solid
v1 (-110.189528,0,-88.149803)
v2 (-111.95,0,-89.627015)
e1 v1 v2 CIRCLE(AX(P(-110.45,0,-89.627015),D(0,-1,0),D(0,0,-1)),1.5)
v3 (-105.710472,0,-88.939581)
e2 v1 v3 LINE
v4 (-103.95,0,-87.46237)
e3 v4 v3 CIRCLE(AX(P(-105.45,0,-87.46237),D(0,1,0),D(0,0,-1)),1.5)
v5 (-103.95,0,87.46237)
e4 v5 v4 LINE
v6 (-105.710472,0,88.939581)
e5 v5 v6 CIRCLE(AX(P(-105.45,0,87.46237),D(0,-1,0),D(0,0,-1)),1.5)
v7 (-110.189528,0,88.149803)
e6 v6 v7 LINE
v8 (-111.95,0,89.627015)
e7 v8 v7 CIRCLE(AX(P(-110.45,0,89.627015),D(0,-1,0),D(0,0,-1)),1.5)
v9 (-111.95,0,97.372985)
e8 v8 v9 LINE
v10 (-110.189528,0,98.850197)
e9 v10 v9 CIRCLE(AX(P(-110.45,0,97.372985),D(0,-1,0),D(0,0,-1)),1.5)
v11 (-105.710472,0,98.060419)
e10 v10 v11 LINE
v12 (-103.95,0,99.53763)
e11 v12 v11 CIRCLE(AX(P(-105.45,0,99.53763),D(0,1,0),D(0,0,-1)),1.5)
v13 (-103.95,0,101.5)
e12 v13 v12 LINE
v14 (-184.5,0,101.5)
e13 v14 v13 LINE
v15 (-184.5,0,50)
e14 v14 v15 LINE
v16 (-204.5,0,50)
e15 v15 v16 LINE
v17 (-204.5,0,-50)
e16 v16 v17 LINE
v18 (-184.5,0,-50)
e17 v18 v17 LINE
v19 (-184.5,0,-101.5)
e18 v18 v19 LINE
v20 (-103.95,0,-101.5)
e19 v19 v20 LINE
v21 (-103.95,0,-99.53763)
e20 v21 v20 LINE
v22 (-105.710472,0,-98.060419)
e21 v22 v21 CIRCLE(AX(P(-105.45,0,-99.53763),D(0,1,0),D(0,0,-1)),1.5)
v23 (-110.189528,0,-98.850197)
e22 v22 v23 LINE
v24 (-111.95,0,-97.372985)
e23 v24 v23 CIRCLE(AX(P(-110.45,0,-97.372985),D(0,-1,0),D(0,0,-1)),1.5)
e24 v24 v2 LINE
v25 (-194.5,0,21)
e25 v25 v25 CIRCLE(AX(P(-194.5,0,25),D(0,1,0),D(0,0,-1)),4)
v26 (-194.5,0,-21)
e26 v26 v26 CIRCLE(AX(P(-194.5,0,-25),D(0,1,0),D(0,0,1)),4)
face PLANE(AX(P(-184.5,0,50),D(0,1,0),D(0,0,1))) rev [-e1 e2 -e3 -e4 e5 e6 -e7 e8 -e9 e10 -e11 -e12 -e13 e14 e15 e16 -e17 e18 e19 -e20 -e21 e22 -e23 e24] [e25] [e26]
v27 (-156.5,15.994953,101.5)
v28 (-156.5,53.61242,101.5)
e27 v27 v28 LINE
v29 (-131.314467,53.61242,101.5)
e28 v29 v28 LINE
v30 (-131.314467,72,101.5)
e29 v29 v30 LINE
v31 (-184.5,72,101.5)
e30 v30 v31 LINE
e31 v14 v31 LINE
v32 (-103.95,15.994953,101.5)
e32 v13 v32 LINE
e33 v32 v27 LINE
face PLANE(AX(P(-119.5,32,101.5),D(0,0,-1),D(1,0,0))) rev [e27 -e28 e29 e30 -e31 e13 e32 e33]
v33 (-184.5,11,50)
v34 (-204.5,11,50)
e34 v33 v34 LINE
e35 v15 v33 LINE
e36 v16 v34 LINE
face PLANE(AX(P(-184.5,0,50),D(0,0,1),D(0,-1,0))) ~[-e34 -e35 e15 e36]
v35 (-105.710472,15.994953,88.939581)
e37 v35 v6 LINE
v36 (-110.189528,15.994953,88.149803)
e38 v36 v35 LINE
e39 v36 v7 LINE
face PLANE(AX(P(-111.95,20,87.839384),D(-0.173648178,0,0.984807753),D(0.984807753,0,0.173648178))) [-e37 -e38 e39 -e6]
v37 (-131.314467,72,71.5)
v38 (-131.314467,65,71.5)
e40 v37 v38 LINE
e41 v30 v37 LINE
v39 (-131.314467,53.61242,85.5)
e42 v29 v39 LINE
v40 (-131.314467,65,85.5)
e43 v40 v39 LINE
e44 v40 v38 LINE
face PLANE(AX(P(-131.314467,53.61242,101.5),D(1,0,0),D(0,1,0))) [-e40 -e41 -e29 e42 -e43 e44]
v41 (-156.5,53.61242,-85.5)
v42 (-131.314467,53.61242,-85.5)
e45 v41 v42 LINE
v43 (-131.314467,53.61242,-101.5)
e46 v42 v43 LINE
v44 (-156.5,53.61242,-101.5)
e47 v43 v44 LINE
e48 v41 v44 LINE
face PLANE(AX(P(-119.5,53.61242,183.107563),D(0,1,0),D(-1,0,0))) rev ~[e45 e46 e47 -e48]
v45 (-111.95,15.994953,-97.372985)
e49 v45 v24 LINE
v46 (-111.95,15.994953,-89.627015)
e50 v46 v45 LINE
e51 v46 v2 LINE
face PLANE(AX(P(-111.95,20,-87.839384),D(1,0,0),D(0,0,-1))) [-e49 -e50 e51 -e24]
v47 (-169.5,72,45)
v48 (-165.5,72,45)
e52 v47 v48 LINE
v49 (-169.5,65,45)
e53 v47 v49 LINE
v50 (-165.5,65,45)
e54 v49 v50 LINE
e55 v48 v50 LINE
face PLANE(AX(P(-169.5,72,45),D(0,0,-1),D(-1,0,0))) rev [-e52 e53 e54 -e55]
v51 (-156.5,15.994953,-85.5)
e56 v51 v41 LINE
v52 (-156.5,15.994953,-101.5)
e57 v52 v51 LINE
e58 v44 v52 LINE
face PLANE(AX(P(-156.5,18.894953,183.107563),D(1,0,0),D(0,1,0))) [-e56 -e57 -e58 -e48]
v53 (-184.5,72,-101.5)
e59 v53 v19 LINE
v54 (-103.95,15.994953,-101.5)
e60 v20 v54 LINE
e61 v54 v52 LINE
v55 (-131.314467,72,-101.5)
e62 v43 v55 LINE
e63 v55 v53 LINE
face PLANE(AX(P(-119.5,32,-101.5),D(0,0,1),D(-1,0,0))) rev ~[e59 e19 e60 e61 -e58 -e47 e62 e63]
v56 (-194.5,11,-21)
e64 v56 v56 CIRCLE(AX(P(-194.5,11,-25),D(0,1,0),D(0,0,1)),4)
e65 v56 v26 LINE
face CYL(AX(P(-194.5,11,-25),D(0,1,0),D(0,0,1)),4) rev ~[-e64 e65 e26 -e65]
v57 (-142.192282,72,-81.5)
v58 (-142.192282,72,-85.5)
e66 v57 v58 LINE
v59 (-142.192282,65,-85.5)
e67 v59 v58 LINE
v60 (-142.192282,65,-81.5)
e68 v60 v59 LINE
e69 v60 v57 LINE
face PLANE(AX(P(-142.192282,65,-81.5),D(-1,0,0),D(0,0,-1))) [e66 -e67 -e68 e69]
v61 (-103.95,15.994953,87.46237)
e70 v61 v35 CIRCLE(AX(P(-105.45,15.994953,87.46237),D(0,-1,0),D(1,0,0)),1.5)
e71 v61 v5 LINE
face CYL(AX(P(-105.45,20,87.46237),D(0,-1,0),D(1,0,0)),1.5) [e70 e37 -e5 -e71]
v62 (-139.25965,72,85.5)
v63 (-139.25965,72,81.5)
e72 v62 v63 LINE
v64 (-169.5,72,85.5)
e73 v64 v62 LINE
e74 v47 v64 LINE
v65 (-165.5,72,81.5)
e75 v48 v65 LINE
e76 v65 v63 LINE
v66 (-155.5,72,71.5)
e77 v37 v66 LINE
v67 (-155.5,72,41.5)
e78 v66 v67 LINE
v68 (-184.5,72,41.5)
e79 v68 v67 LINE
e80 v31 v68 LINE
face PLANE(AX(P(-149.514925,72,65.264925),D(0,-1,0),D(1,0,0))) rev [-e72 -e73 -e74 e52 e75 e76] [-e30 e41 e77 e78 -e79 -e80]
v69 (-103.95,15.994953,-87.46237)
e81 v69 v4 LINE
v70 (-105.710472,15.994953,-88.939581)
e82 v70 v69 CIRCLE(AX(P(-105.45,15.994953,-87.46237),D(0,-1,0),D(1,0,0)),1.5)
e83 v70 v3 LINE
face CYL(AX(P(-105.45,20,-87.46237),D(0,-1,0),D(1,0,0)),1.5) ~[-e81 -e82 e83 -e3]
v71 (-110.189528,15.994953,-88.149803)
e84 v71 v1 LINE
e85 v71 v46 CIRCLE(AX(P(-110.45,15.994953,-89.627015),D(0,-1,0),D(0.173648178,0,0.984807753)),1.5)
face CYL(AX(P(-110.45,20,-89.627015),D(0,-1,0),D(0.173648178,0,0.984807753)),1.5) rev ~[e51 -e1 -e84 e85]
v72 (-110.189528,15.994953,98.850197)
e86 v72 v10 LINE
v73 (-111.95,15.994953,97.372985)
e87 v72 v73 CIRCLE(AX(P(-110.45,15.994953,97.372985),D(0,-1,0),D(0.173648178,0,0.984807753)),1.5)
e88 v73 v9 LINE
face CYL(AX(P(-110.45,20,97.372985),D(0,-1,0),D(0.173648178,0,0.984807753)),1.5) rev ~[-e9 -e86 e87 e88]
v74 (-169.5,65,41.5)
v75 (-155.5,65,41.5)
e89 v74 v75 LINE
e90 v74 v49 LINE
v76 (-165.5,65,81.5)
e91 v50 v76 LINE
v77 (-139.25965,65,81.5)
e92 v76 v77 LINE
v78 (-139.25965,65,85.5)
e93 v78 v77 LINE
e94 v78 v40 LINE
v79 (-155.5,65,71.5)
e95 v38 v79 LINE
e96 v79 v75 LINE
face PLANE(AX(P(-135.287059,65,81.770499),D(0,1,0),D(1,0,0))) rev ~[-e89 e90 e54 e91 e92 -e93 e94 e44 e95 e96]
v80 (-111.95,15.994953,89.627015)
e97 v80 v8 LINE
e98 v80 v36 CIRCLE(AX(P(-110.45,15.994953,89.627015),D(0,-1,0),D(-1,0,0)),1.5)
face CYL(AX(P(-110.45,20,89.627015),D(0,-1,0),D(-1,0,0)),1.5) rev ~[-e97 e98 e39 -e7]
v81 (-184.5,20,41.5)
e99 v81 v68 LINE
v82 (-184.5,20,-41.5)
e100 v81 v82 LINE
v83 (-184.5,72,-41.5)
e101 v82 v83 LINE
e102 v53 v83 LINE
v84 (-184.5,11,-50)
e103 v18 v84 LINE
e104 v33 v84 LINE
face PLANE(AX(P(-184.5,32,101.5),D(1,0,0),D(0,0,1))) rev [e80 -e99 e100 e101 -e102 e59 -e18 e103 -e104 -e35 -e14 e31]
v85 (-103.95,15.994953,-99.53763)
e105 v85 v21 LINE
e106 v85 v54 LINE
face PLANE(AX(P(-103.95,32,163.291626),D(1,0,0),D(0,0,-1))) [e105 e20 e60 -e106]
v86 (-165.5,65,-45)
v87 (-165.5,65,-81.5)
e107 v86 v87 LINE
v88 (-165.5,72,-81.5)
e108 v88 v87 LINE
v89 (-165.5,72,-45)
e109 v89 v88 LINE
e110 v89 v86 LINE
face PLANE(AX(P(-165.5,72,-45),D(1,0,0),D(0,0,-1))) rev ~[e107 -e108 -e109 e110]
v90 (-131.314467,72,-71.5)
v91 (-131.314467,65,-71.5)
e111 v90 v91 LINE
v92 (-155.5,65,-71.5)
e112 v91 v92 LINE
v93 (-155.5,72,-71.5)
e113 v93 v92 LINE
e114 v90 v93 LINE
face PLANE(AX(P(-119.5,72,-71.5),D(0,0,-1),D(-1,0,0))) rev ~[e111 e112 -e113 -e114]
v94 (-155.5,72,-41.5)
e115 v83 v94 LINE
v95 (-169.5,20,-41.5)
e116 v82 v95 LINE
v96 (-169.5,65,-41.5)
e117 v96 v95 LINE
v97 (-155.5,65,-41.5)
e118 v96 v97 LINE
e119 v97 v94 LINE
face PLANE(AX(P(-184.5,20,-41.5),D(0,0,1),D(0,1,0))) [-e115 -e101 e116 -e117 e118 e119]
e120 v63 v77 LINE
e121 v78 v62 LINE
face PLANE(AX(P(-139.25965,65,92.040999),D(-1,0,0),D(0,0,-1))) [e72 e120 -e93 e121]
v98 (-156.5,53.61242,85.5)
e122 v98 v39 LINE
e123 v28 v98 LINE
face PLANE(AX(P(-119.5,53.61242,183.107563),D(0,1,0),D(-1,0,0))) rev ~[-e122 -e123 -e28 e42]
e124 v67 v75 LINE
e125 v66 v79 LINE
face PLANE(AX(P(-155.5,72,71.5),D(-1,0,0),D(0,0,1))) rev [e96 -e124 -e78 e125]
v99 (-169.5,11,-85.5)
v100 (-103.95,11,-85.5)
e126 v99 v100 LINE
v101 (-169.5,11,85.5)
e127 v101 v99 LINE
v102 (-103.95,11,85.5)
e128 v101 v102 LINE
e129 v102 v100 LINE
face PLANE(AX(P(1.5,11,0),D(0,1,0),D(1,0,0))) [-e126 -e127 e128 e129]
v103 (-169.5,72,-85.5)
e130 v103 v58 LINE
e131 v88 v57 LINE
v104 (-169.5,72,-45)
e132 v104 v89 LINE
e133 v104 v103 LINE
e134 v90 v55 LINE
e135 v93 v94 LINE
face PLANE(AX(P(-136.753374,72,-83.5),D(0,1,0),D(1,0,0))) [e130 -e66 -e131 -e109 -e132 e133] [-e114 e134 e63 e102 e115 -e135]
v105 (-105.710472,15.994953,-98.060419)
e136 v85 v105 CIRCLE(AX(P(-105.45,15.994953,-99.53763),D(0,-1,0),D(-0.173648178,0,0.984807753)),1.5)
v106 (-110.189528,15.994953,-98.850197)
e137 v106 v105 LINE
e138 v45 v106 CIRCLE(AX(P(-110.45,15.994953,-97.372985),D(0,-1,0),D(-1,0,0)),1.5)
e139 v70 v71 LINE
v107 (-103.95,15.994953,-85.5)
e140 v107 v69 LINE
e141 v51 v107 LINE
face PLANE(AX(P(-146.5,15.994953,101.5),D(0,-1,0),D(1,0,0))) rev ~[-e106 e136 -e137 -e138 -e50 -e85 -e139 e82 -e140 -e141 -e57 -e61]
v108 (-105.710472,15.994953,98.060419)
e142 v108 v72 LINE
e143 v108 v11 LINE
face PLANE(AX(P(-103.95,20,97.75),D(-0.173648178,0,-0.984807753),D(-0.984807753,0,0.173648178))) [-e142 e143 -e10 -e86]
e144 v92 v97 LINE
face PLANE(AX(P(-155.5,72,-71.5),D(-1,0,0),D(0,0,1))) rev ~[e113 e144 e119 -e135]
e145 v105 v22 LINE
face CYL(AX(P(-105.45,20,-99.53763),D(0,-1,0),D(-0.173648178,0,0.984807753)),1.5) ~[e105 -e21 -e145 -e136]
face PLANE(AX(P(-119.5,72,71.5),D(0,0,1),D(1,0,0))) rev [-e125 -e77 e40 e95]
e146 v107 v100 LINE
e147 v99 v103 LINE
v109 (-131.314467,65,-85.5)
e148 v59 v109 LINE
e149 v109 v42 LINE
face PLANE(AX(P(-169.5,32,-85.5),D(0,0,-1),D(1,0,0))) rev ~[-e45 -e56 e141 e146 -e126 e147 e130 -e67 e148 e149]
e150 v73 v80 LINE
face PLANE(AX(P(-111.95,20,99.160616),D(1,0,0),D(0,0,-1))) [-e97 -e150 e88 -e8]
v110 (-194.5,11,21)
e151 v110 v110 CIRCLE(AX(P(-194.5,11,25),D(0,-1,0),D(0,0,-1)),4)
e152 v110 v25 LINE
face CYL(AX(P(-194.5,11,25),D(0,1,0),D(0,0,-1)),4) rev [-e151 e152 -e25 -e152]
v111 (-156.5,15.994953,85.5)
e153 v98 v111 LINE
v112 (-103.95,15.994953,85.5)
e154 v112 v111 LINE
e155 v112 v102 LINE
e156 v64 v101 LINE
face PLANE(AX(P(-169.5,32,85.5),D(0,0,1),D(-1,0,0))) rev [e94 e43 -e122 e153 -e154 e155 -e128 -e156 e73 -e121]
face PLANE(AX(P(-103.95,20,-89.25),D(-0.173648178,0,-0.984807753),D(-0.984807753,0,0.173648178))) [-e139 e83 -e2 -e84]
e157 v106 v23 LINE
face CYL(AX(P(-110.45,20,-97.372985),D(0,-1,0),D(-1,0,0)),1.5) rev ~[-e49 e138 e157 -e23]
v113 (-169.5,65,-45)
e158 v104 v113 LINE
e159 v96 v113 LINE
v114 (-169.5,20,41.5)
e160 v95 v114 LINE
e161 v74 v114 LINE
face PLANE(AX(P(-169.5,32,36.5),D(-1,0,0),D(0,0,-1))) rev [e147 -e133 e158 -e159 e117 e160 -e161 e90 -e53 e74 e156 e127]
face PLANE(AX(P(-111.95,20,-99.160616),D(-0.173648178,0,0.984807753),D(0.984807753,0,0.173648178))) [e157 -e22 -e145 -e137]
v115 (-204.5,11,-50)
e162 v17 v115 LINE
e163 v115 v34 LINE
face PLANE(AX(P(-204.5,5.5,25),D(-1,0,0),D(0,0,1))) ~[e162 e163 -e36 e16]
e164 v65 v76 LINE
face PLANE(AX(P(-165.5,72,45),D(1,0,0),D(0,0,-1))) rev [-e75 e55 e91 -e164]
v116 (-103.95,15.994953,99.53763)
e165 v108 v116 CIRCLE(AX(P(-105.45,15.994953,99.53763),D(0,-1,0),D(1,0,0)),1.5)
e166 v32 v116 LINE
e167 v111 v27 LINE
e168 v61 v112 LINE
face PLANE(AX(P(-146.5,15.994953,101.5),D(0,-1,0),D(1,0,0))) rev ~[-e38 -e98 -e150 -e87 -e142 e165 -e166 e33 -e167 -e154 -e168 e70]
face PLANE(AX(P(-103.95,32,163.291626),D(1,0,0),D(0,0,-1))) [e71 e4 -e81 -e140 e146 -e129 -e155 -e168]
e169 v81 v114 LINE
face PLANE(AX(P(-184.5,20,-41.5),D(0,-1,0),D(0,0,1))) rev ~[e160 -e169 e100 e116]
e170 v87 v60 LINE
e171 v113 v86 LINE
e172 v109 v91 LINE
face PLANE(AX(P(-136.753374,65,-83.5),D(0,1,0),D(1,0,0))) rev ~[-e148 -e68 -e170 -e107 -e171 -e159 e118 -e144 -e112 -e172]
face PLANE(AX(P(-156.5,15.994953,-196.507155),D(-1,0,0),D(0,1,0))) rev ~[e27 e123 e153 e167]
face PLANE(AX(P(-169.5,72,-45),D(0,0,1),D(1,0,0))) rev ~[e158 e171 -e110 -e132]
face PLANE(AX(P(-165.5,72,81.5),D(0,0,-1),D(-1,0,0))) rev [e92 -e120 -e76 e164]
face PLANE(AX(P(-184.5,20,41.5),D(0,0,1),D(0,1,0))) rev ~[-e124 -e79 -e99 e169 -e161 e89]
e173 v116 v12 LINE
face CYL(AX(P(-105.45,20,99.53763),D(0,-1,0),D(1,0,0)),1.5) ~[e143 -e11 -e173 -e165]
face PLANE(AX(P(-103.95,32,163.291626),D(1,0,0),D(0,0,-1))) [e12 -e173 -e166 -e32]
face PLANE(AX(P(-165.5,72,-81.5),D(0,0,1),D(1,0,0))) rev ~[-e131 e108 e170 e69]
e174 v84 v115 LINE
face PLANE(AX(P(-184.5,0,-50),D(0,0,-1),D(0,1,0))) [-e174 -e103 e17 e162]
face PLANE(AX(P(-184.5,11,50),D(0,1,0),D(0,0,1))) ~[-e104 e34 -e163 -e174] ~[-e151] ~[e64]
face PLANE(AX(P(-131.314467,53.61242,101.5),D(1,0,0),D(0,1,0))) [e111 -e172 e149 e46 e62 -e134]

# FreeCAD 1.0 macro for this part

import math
import FreeCAD as App
import Part
import Sketcher

V = App.Vector
Q = App.Units.Quantity


def edges_at(feature, points):
    """Names of the edges that pass closest to the given points."""
    edges = feature.Shape.Edges
    near = lambda p: min(range(len(edges)), key=lambda i: edges[i].distToShape(Part.Vertex(*p))[0])
    return sorted({f"Edge{near(p) + 1}" for p in points})

doc = App.newDocument("Part")
body = doc.addObject("PartDesign::Body", "Body")

# Sketch on XZ plane
sketch1 = doc.addObject("Sketcher::SketchObject", "Sketch")
body.addObject(sketch1)
sketch1.AttachmentSupport = (doc.XZ_Plane, [""])
sketch1.MapMode = "FlatFace"
sketch1.addGeometry([
    Part.LineSegment(V(-184, -102, 0), V(-184, 102, 0)),
    Part.LineSegment(V(-184, 102, 0), V(184, 102, 0)),
    Part.LineSegment(V(184, 102, 0), V(184, -102, 0)),
    Part.LineSegment(V(184, -102, 0), V(-184, -102, 0)),
], False)
sketch1.addConstraint([
    Sketcher.Constraint("Coincident", 0, 2, 1, 1),
    Sketcher.Constraint("Coincident", 1, 2, 2, 1),
    Sketcher.Constraint("Coincident", 2, 2, 3, 1),
    Sketcher.Constraint("Coincident", 3, 2, 0, 1),
    Sketcher.Constraint("Vertical", 0),
    Sketcher.Constraint("Horizontal", 1),
    Sketcher.Constraint("Vertical", 2),
    Sketcher.Constraint("Horizontal", 3),
    Sketcher.Constraint("Symmetric", 0, 2, 2, 2, -1, 1),
    Sketcher.Constraint("DistanceX", 1, 1, 1, 2, Q("369 mm")),
    Sketcher.Constraint("DistanceY", 0, 1, 0, 2, Q("203 mm")),
])
pad1 = doc.addObject("PartDesign::Pad", "Pad")
body.addObject(pad1)
pad1.Profile = sketch1
pad1.Length = 20
pad1.Reversed = True

# Sketch on XZ plane
sketch2 = doc.addObject("Sketcher::SketchObject", "Sketch001")
body.addObject(sketch2)
sketch2.AttachmentSupport = (doc.XZ_Plane, [""])
sketch2.MapMode = "FlatFace"
sketch2.AttachmentOffset = App.Placement(V(0, 0, -20), App.Rotation())
sketch2.addGeometry([
    Part.LineSegment(V(-184, 102, 0), V(-120, 102, 0)),  # 0
    Part.LineSegment(V(-120, 102, 0), V(-120, 86, 0)),  # 1
    Part.LineSegment(V(-120, 86, 0), V(-170, 86, 0)),  # 2
    Part.LineSegment(V(-170, 86, 0), V(-170, 36, 0)),  # 3
    Part.LineSegment(V(-170, 36, 0), V(-184, 36, 0)),  # 4
    Part.LineSegment(V(-184, 36, 0), V(-184, 102, 0)),  # 5
    Part.LineSegment(V(-120, -102, 0), V(-184, -102, 0)),  # 6
    Part.LineSegment(V(-184, -102, 0), V(-184, -36, 0)),  # 7
    Part.LineSegment(V(-184, -36, 0), V(-170, -36, 0)),  # 8
    Part.LineSegment(V(-170, -36, 0), V(-170, -86, 0)),  # 9
    Part.LineSegment(V(-170, -86, 0), V(-120, -86, 0)),  # 10
    Part.LineSegment(V(-120, -86, 0), V(-120, -102, 0)),  # 11
    Part.LineSegment(V(-44, 86, 0), V(-44, 102, 0)),  # 12
    Part.LineSegment(V(-44, 102, 0), V(84, 102, 0)),  # 13
    Part.LineSegment(V(84, 102, 0), V(84, 86, 0)),  # 14
    Part.LineSegment(V(84, 86, 0), V(-44, 86, 0)),  # 15
    Part.LineSegment(V(-44, -102, 0), V(-44, -86, 0)),  # 16
    Part.LineSegment(V(-44, -86, 0), V(84, -86, 0)),  # 17
    Part.LineSegment(V(84, -86, 0), V(84, -102, 0)),  # 18
    Part.LineSegment(V(84, -102, 0), V(-44, -102, 0)),  # 19
], False)
sketch2.addConstraint([
    Sketcher.Constraint("Coincident", 0, 2, 1, 1),
    Sketcher.Constraint("Coincident", 1, 2, 2, 1),
    Sketcher.Constraint("Coincident", 2, 2, 3, 1),
    Sketcher.Constraint("Coincident", 3, 2, 4, 1),
    Sketcher.Constraint("Coincident", 4, 2, 5, 1),
    Sketcher.Constraint("Coincident", 5, 2, 0, 1),
    Sketcher.Constraint("Coincident", 6, 2, 7, 1),
    Sketcher.Constraint("Coincident", 7, 2, 8, 1),
    Sketcher.Constraint("Coincident", 8, 2, 9, 1),
    Sketcher.Constraint("Coincident", 9, 2, 10, 1),
    Sketcher.Constraint("Coincident", 10, 2, 11, 1),
    Sketcher.Constraint("Coincident", 11, 2, 6, 1),
    Sketcher.Constraint("Coincident", 12, 2, 13, 1),
    Sketcher.Constraint("Coincident", 13, 2, 14, 1),
    Sketcher.Constraint("Coincident", 14, 2, 15, 1),
    Sketcher.Constraint("Coincident", 15, 2, 12, 1),
    Sketcher.Constraint("Coincident", 16, 2, 17, 1),
    Sketcher.Constraint("Coincident", 17, 2, 18, 1),
    Sketcher.Constraint("Coincident", 18, 2, 19, 1),
    Sketcher.Constraint("Coincident", 19, 2, 16, 1),
    Sketcher.Constraint("Horizontal", 0),
    Sketcher.Constraint("Vertical", 1),
    Sketcher.Constraint("Horizontal", 2),
    Sketcher.Constraint("Vertical", 3),
    Sketcher.Constraint("Horizontal", 4),
    Sketcher.Constraint("Vertical", 5),
    Sketcher.Constraint("Horizontal", 6),
    Sketcher.Constraint("Vertical", 7),
    Sketcher.Constraint("Horizontal", 8),
    Sketcher.Constraint("Vertical", 9),
    Sketcher.Constraint("Horizontal", 10),
    Sketcher.Constraint("Vertical", 11),
    Sketcher.Constraint("Vertical", 12),
    Sketcher.Constraint("Horizontal", 13),
    Sketcher.Constraint("Vertical", 14),
    Sketcher.Constraint("Horizontal", 15),
    Sketcher.Constraint("Vertical", 16),
    Sketcher.Constraint("Horizontal", 17),
    Sketcher.Constraint("Vertical", 18),
    Sketcher.Constraint("Horizontal", 19),
    Sketcher.Constraint("Symmetric", 5, 2, 6, 2, -1),
    Sketcher.Constraint("Symmetric", 3, 2, 8, 2, -1),
    Sketcher.Constraint("Symmetric", 1, 2, 10, 2, -1),
    Sketcher.Constraint("Symmetric", 15, 2, 16, 2, -1),
    Sketcher.Constraint("Symmetric", 13, 2, 18, 2, -1),
    Sketcher.Constraint("Horizontal", 5, 2, 12, 2),
    Sketcher.Constraint("Horizontal", 2, 2, 14, 2),
    Sketcher.Constraint("Equal", 6, 5),
    Sketcher.Constraint("DistanceX", 0, 1, 0, 2, Q("65 mm")),
    Sketcher.Constraint("DistanceX", 2, 2, 2, 1, Q("50 mm")),
    Sketcher.Constraint("DistanceX", 13, 1, 13, 2, Q("129 mm")),
    Sketcher.Constraint("DistanceY", 1, 2, 1, 1, Q("16 mm")),
    Sketcher.Constraint("DistanceY", 6, 2, 4, 2, Q("138 mm")),
    Sketcher.Constraint("DistanceX", 0, 2, 12, 2, Q("75 mm")),
    Sketcher.Constraint("DistanceX", 0, 2, -1, 1, Q("119.5 mm")),
])
pad2 = doc.addObject("PartDesign::Pad", "Pad001")
body.addObject(pad2)
pad2.Profile = sketch2
pad2.Length = 12
pad2.Reversed = True

# Sketch on XZ plane
sketch3 = doc.addObject("Sketcher::SketchObject", "Sketch002")
body.addObject(sketch3)
sketch3.AttachmentSupport = (doc.XZ_Plane, [""])
sketch3.MapMode = "FlatFace"
sketch3.AttachmentOffset = App.Placement(V(0, 0, -20), App.Rotation())
sketch3.addGeometry([
    Part.LineSegment(V(-170, -86, 0), V(-170, 86, 0)),
    Part.LineSegment(V(-170, 86, 0), V(172, 86, 0)),
    Part.LineSegment(V(172, 86, 0), V(172, -86, 0)),
    Part.LineSegment(V(172, -86, 0), V(-170, -86, 0)),
], False)
sketch3.addConstraint([
    Sketcher.Constraint("Coincident", 0, 2, 1, 1),
    Sketcher.Constraint("Coincident", 1, 2, 2, 1),
    Sketcher.Constraint("Coincident", 2, 2, 3, 1),
    Sketcher.Constraint("Coincident", 3, 2, 0, 1),
    Sketcher.Constraint("Vertical", 0),
    Sketcher.Constraint("Horizontal", 1),
    Sketcher.Constraint("Vertical", 2),
    Sketcher.Constraint("Horizontal", 3),
    Sketcher.Constraint("DistanceX", 1, 1, 1, 2, Q("342 mm")),
    Sketcher.Constraint("DistanceY", 0, 1, 0, 2, Q("171 mm")),
    Sketcher.Constraint("DistanceX", 0, 2, -1, 1, Q("169.5 mm")),
    Sketcher.Constraint("DistanceY", -1, 1, 0, 2, Q("85.5 mm")),
])
pocket1 = doc.addObject("PartDesign::Pocket", "Pocket")
body.addObject(pocket1)
pocket1.Profile = sketch3
pocket1.Length = 9
pocket1.Reversed = True

# Sketch on XY plane
sketch4 = doc.addObject("Sketcher::SketchObject", "Sketch003")
body.addObject(sketch4)
sketch4.AttachmentSupport = (doc.XY_Plane, [""])
sketch4.MapMode = "FlatFace"
sketch4.AttachmentOffset = App.Placement(V(0, 0, -101.5), App.Rotation())
sketch4.addGeometry([
    Part.LineSegment(V(70, 32, 0), V(70, 20, 0)),
    Part.LineSegment(V(70, 20, 0), V(-30, 20, 0)),
    Part.LineSegment(V(-30, 20, 0), V(-30, 32, 0)),
    Part.LineSegment(V(-30, 32, 0), V(70, 32, 0)),
], False)
sketch4.addConstraint([
    Sketcher.Constraint("Coincident", 0, 2, 1, 1),
    Sketcher.Constraint("Coincident", 1, 2, 2, 1),
    Sketcher.Constraint("Coincident", 2, 2, 3, 1),
    Sketcher.Constraint("Coincident", 3, 2, 0, 1),
    Sketcher.Constraint("Vertical", 0),
    Sketcher.Constraint("Horizontal", 1),
    Sketcher.Constraint("Vertical", 2),
    Sketcher.Constraint("Horizontal", 3),
    Sketcher.Constraint("DistanceX", 1, 2, 1, 1, Q("100 mm")),
    Sketcher.Constraint("DistanceY", 0, 2, 0, 1, Q("12 mm")),
    Sketcher.Constraint("DistanceY", -1, 1, 0, 2, Q("20 mm")),
    Sketcher.Constraint("DistanceX", -1, 1, 0, 2, Q("69.5 mm")),
])
pad3 = doc.addObject("PartDesign::Pad", "Pad002")
body.addObject(pad3)
pad3.Profile = sketch4
pad3.Length = 60
pad3.Reversed = True

# Sketch on XY plane
sketch5 = doc.addObject("Sketcher::SketchObject", "Sketch004")
body.addObject(sketch5)
sketch5.AttachmentSupport = (doc.XY_Plane, [""])
sketch5.MapMode = "FlatFace"
sketch5.AttachmentOffset = App.Placement(V(0, 0, -145.5), App.Rotation())
sketch5.addGeometry([
    Part.LineSegment(V(-24.5, 32, 0), V(-26.8, 29.1, 0)),  # 0
    Part.ArcOfCircle(Part.Circle(V(-25.4, 28, 0), V(0, 0, 1), 1.8), math.radians(142), math.radians(270)),  # 1
    Part.LineSegment(V(-25.4, 26.2, 0), V(-15.6, 26.2, 0)),  # 2
    Part.ArcOfCircle(Part.Circle(V(-15.6, 28, 0), V(0, 0, 1), 1.8), math.radians(-90), math.radians(38)),  # 3
    Part.LineSegment(V(-14.2, 29.1, 0), V(-16.5, 32, 0)),  # 4
    Part.LineSegment(V(-16.5, 32, 0), V(-24.5, 32, 0)),  # 5
    Part.LineSegment(V(56.5, 32, 0), V(54.3, 28.7, 0)),  # 6
    Part.ArcOfCircle(Part.Circle(V(55.6, 27.8, 0), V(0, 0, 1), 1.7), math.radians(146), math.radians(270)),  # 7
    Part.LineSegment(V(55.6, 26.1, 0), V(65.4, 26.1, 0)),  # 8
    Part.ArcOfCircle(Part.Circle(V(65.4, 27.8, 0), V(0, 0, 1), 1.7), math.radians(-90), math.radians(34)),  # 9
    Part.LineSegment(V(66.7, 28.7, 0), V(64.5, 32, 0)),  # 10
    Part.LineSegment(V(64.5, 32, 0), V(56.5, 32, 0)),  # 11
], False)
sketch5.addConstraint([
    Sketcher.Constraint("Tangent", 0, 2, 1, 1),
    Sketcher.Constraint("Tangent", 1, 2, 2, 1),
    Sketcher.Constraint("Tangent", 2, 2, 3, 1),
    Sketcher.Constraint("Tangent", 3, 2, 4, 1),
    Sketcher.Constraint("Coincident", 4, 2, 5, 1),
    Sketcher.Constraint("Coincident", 5, 2, 0, 1),
    Sketcher.Constraint("Tangent", 6, 2, 7, 1),
    Sketcher.Constraint("Tangent", 7, 2, 8, 1),
    Sketcher.Constraint("Tangent", 8, 2, 9, 1),
    Sketcher.Constraint("Tangent", 9, 2, 10, 1),
    Sketcher.Constraint("Coincident", 10, 2, 11, 1),
    Sketcher.Constraint("Coincident", 11, 2, 6, 1),
    Sketcher.Constraint("Horizontal", 2),
    Sketcher.Constraint("Horizontal", 5),
    Sketcher.Constraint("Horizontal", 8),
    Sketcher.Constraint("Horizontal", 11),
    Sketcher.Constraint("Equal", 1, 3),
    Sketcher.Constraint("Equal", 7, 9),
    Sketcher.Constraint("Horizontal", 0, 2, 3, 2),
    Sketcher.Constraint("Horizontal", 6, 2, 9, 2),
    Sketcher.Constraint("Horizontal", 5, 2, 10, 2),
    Sketcher.Constraint("Equal", 2, 8),
    Sketcher.Constraint("Equal", 5, 11),
    Sketcher.Constraint("DistanceX", 5, 2, 5, 1, Q("8 mm")),
    Sketcher.Constraint("DistanceY", -1, 1, 4, 2, Q("32 mm")),
    Sketcher.Constraint("DistanceX", 1, 3, 7, 3, Q("80.999999 mm")),
    Sketcher.Constraint("DistanceX", 4, 2, -1, 1, Q("16.5 mm")),
    Sketcher.Constraint("Radius", 1, Q("1.809841 mm")),
    Sketcher.Constraint("Radius", 7, Q("1.674035 mm")),
    Sketcher.Constraint("DistanceX", 2, 1, 2, 2, Q("9.732621 mm")),
    Sketcher.Constraint("DistanceX", 0, 2, -1, 1, Q("26.787099 mm")),
    Sketcher.Constraint("DistanceY", -1, 1, 7, 2, Q("26.080599 mm")),
])
pocket2 = doc.addObject("PartDesign::Pocket", "Pocket001")
body.addObject(pocket2)
pocket2.Profile = sketch5
pocket2.Length = 70
pocket2.Reversed = True

# Sketch on XZ plane
sketch6 = doc.addObject("Sketcher::SketchObject", "Sketch005")
body.addObject(sketch6)
sketch6.AttachmentSupport = (doc.XZ_Plane, [""])
sketch6.MapMode = "FlatFace"
sketch6.AttachmentOffset = App.Placement(V(0, 0, -32), App.Rotation())
sketch6.addGeometry([
    Part.LineSegment(V(-184, -36, 0), V(-170, -36, 0)),  # 0
    Part.LineSegment(V(-170, -36, 0), V(-170, -86, 0)),  # 1
    Part.LineSegment(V(-170, -86, 0), V(-120, -86, 0)),  # 2
    Part.LineSegment(V(-120, -86, 0), V(-120, -102, 0)),  # 3
    Part.LineSegment(V(-120, -102, 0), V(-184, -102, 0)),  # 4
    Part.LineSegment(V(-184, -102, 0), V(-184, -36, 0)),  # 5
], False)
sketch6.addConstraint([
    Sketcher.Constraint("Coincident", 0, 2, 1, 1),
    Sketcher.Constraint("Coincident", 1, 2, 2, 1),
    Sketcher.Constraint("Coincident", 2, 2, 3, 1),
    Sketcher.Constraint("Coincident", 3, 2, 4, 1),
    Sketcher.Constraint("Coincident", 4, 2, 5, 1),
    Sketcher.Constraint("Coincident", 5, 2, 0, 1),
    Sketcher.Constraint("Horizontal", 0),
    Sketcher.Constraint("Vertical", 1),
    Sketcher.Constraint("Horizontal", 2),
    Sketcher.Constraint("Vertical", 3),
    Sketcher.Constraint("Horizontal", 4),
    Sketcher.Constraint("Vertical", 5),
    Sketcher.Constraint("Equal", 4, 5),
    Sketcher.Constraint("DistanceX", 0, 1, 0, 2, Q("15 mm")),
    Sketcher.Constraint("DistanceX", 2, 1, 2, 2, Q("50 mm")),
    Sketcher.Constraint("DistanceY", 1, 2, 1, 1, Q("49 mm")),
    Sketcher.Constraint("DistanceX", 0, 2, -1, 1, Q("169.5 mm")),
    Sketcher.Constraint("DistanceY", 0, 2, -1, 1, Q("36.5 mm")),
])
pad4 = doc.addObject("PartDesign::Pad", "Pad003")
body.addObject(pad4)
pad4.Profile = sketch6
pad4.Length = 40
pad4.Reversed = True

# Sketch on XZ plane
sketch7 = doc.addObject("Sketcher::SketchObject", "Sketch006")
body.addObject(sketch7)
sketch7.AttachmentSupport = (doc.XZ_Plane, [""])
sketch7.MapMode = "FlatFace"
sketch7.AttachmentOffset = App.Placement(V(0, 0, -72), App.Rotation())
sketch7.addGeometry([
    Part.LineSegment(V(-119.5, -71.5, 0), V(-119.5, -85.5, 0)),  # 0
    Part.LineSegment(V(-119.5, -85.5, 0), V(-129.5, -85.5, 0)),  # 1
    Part.LineSegment(V(-129.5, -85.5, 0), V(-129.5, -81.5, 0)),  # 2
    Part.LineSegment(V(-129.5, -81.5, 0), V(-165.5, -81.5, 0)),  # 3
    Part.LineSegment(V(-165.5, -81.5, 0), V(-165.5, -45, 0)),  # 4
    Part.LineSegment(V(-165.5, -45, 0), V(-169.5, -45, 0)),  # 5
    Part.LineSegment(V(-169.5, -45, 0), V(-169.5, -35, 0)),  # 6
    Part.LineSegment(V(-169.5, -35, 0), V(-155.5, -35, 0)),  # 7
    Part.LineSegment(V(-155.5, -35, 0), V(-155.5, -71.5, 0)),  # 8
    Part.LineSegment(V(-155.5, -71.5, 0), V(-119.5, -71.5, 0)),  # 9
], False)
sketch7.addConstraint([
    Sketcher.Constraint("Coincident", 0, 2, 1, 1),
    Sketcher.Constraint("Coincident", 1, 2, 2, 1),
    Sketcher.Constraint("Coincident", 2, 2, 3, 1),
    Sketcher.Constraint("Coincident", 3, 2, 4, 1),
    Sketcher.Constraint("Coincident", 4, 2, 5, 1),
    Sketcher.Constraint("Coincident", 5, 2, 6, 1),
    Sketcher.Constraint("Coincident", 6, 2, 7, 1),
    Sketcher.Constraint("Coincident", 7, 2, 8, 1),
    Sketcher.Constraint("Coincident", 8, 2, 9, 1),
    Sketcher.Constraint("Coincident", 9, 2, 0, 1),
    Sketcher.Constraint("Vertical", 0),
    Sketcher.Constraint("Horizontal", 1),
    Sketcher.Constraint("Vertical", 2),
    Sketcher.Constraint("Horizontal", 3),
    Sketcher.Constraint("Vertical", 4),
    Sketcher.Constraint("Horizontal", 5),
    Sketcher.Constraint("Vertical", 6),
    Sketcher.Constraint("Horizontal", 7),
    Sketcher.Constraint("Vertical", 8),
    Sketcher.Constraint("Horizontal", 9),
    Sketcher.Constraint("Equal", 3, 9),
    Sketcher.Constraint("Equal", 7, 0),
    Sketcher.Constraint("Equal", 5, 2),
    Sketcher.Constraint("Equal", 1, 6),
    Sketcher.Constraint("DistanceX", 1, 2, 1, 1, Q("10 mm")),
    Sketcher.Constraint("DistanceX", 3, 2, 3, 1, Q("36 mm")),
    Sketcher.Constraint("DistanceX", 5, 2, 5, 1, Q("4 mm")),
    Sketcher.Constraint("DistanceY", 4, 1, 4, 2, Q("36.5 mm")),
    Sketcher.Constraint("DistanceY", 4, 2, -1, 1, Q("45 mm")),
    Sketcher.Constraint("DistanceX", 0, 2, -1, 1, Q("119.5 mm")),
])
pad5 = doc.addObject("PartDesign::Pad", "Pad004")
body.addObject(pad5)
pad5.Profile = sketch7
pad5.Length = 7
doc.recompute()

mirrored = doc.addObject("PartDesign::Mirrored", "Mirrored")
body.addObject(mirrored)
mirrored.Originals = [pad3, pocket2, pad4, pad5]
mirrored.MirrorPlane = (doc.XY_Plane, [""])
body.Tip = mirrored

# Sketch on XZ plane
sketch8 = doc.addObject("Sketcher::SketchObject", "Sketch007")
body.addObject(sketch8)
sketch8.AttachmentSupport = (doc.XZ_Plane, [""])
sketch8.MapMode = "FlatFace"
sketch8.AttachmentOffset = App.Placement(V(0, 0, -32), App.Rotation())
sketch8.addGeometry([
    Part.LineSegment(V(-104, -162, 0), V(-104, 163, 0)),
    Part.LineSegment(V(-104, 163, 0), V(300, 163, 0)),
    Part.LineSegment(V(300, 163, 0), V(300, -162, 0)),
    Part.LineSegment(V(300, -162, 0), V(-104, -162, 0)),
], False)
sketch8.addConstraint([
    Sketcher.Constraint("Coincident", 0, 2, 1, 1),
    Sketcher.Constraint("Coincident", 1, 2, 2, 1),
    Sketcher.Constraint("Coincident", 2, 2, 3, 1),
    Sketcher.Constraint("Coincident", 3, 2, 0, 1),
    Sketcher.Constraint("Vertical", 0),
    Sketcher.Constraint("Horizontal", 1),
    Sketcher.Constraint("Vertical", 2),
    Sketcher.Constraint("Horizontal", 3),
    Sketcher.Constraint("DistanceX", 1, 1, 1, 2, Q("404 mm")),
    Sketcher.Constraint("DistanceX", 0, 2, -1, 1, Q("103.95 mm")),
    Sketcher.Constraint("DistanceY", 0, 1, 0, 2, Q("324.796203 mm")),
    Sketcher.Constraint("DistanceY", -1, 1, 0, 2, Q("163.291626 mm")),
])
pocket3 = doc.addObject("PartDesign::Pocket", "Pocket002")
body.addObject(pocket3)
pocket3.Profile = sketch8
pocket3.Length = 69
pocket3.Reversed = True

# Sketch on XY plane
sketch9 = doc.addObject("Sketcher::SketchObject", "Sketch008")
body.addObject(sketch9)
sketch9.AttachmentSupport = (doc.XY_Plane, [""])
sketch9.MapMode = "FlatFace"
sketch9.AttachmentOffset = App.Placement(V(0, 0, -101.5), App.Rotation())
sketch9.addGeometry([
    Part.LineSegment(V(-120, 54, 0), V(-120, 19, 0)),
    Part.LineSegment(V(-120, 19, 0), V(-156, 19, 0)),
    Part.LineSegment(V(-156, 19, 0), V(-156, 54, 0)),
    Part.LineSegment(V(-156, 54, 0), V(-120, 54, 0)),
], False)
sketch9.addConstraint([
    Sketcher.Constraint("Coincident", 0, 2, 1, 1),
    Sketcher.Constraint("Coincident", 1, 2, 2, 1),
    Sketcher.Constraint("Coincident", 2, 2, 3, 1),
    Sketcher.Constraint("Coincident", 3, 2, 0, 1),
    Sketcher.Constraint("Vertical", 0),
    Sketcher.Constraint("Horizontal", 1),
    Sketcher.Constraint("Vertical", 2),
    Sketcher.Constraint("Horizontal", 3),
    Sketcher.Constraint("DistanceX", 1, 2, 1, 1, Q("37 mm")),
    Sketcher.Constraint("DistanceX", 0, 2, -1, 1, Q("119.5 mm")),
    Sketcher.Constraint("DistanceY", 0, 2, 0, 1, Q("34.717468 mm")),
    Sketcher.Constraint("DistanceY", -1, 1, 2, 2, Q("53.61242 mm")),
])
pocket4 = doc.addObject("PartDesign::Pocket", "Pocket003")
body.addObject(pocket4)
pocket4.Profile = sketch9
pocket4.Type = "ThroughAll"
pocket4.Midplane = True

# Sketch on YZ plane
sketch10 = doc.addObject("Sketcher::SketchObject", "Sketch009")
body.addObject(sketch10)
sketch10.AttachmentSupport = (doc.YZ_Plane, [""])
sketch10.MapMode = "FlatFace"
sketch10.AttachmentOffset = App.Placement(V(0, 0, -184.5), App.Rotation())
sketch10.addGeometry([
    Part.LineSegment(V(11, -50, 0), V(0, -50, 0)),
    Part.LineSegment(V(0, -50, 0), V(0, 0, 0)),
    Part.LineSegment(V(0, 0, 0), V(11, 0, 0)),
    Part.LineSegment(V(11, 0, 0), V(11, -50, 0)),
], False)
sketch10.addConstraint([
    Sketcher.Constraint("Coincident", 0, 2, 1, 1),
    Sketcher.Constraint("Coincident", 1, 2, 2, 1),
    Sketcher.Constraint("Coincident", 2, 2, 3, 1),
    Sketcher.Constraint("Coincident", 3, 2, 0, 1),
    Sketcher.Constraint("Horizontal", 0),
    Sketcher.Constraint("Vertical", 1),
    Sketcher.Constraint("Horizontal", 2),
    Sketcher.Constraint("Vertical", 3),
    Sketcher.Constraint("Coincident", 1, 2, -1, 1),
    Sketcher.Constraint("DistanceX", 0, 2, 0, 1, Q("11 mm")),
    Sketcher.Constraint("DistanceY", 1, 1, 1, 2, Q("50 mm")),
])
pad6 = doc.addObject("PartDesign::Pad", "Pad005")
body.addObject(pad6)
pad6.Profile = sketch10
pad6.Length = 20
pad6.Reversed = True

# Sketch on XZ plane
sketch11 = doc.addObject("Sketcher::SketchObject", "Sketch010")
body.addObject(sketch11)
sketch11.AttachmentSupport = (doc.XZ_Plane, [""])
sketch11.MapMode = "FlatFace"
sketch11.AttachmentOffset = App.Placement(V(0, 0, -11), App.Rotation())
sketch11.addGeometry(Part.Circle(V(-194.5, -25, 0), V(0, 0, 1), 4), False)
sketch11.addConstraint([
    Sketcher.Constraint("Diameter", 0, Q("8 mm")),
    Sketcher.Constraint("DistanceY", 0, 3, -1, 1, Q("25 mm")),
    Sketcher.Constraint("DistanceX", 0, 3, -1, 1, Q("194.5 mm")),
])
pocket5 = doc.addObject("PartDesign::Pocket", "Pocket004")
body.addObject(pocket5)
pocket5.Profile = sketch11
pocket5.Type = "ThroughAll"
pocket5.Reversed = True
doc.recompute()

mirrored2 = doc.addObject("PartDesign::Mirrored", "Mirrored001")
body.addObject(mirrored2)
mirrored2.Originals = [pad6, pocket5]
mirrored2.MirrorPlane = (doc.XY_Plane, [""])
body.Tip = mirrored2

# Sketch on XZ plane
sketch12 = doc.addObject("Sketcher::SketchObject", "Sketch011")
body.addObject(sketch12)
sketch12.AttachmentSupport = (doc.XZ_Plane, [""])
sketch12.MapMode = "FlatFace"
sketch12.AttachmentOffset = App.Placement(V(0, 0, -20), App.Rotation())
sketch12.addGeometry([
    Part.LineSegment(V(-104, -89, 0), V(-104, -98, 0)),  # 0
    Part.LineSegment(V(-104, -98, 0), V(-112, -99, 0)),  # 1
    Part.LineSegment(V(-112, -99, 0), V(-112, -88, 0)),  # 2
    Part.LineSegment(V(-112, -88, 0), V(-104, -89, 0)),  # 3
    Part.LineSegment(V(-104, 98, 0), V(-104, 89, 0)),  # 4
    Part.LineSegment(V(-104, 89, 0), V(-112, 88, 0)),  # 5
    Part.LineSegment(V(-112, 88, 0), V(-112, 99, 0)),  # 6
    Part.LineSegment(V(-112, 99, 0), V(-104, 98, 0)),  # 7
], False)
sketch12.addConstraint([
    Sketcher.Constraint("Coincident", 0, 2, 1, 1),
    Sketcher.Constraint("Coincident", 1, 2, 2, 1),
    Sketcher.Constraint("Coincident", 2, 2, 3, 1),
    Sketcher.Constraint("Coincident", 3, 2, 0, 1),
    Sketcher.Constraint("Coincident", 4, 2, 5, 1),
    Sketcher.Constraint("Coincident", 5, 2, 6, 1),
    Sketcher.Constraint("Coincident", 6, 2, 7, 1),
    Sketcher.Constraint("Coincident", 7, 2, 4, 1),
    Sketcher.Constraint("Vertical", 0),
    Sketcher.Constraint("Vertical", 2),
    Sketcher.Constraint("Vertical", 4),
    Sketcher.Constraint("Vertical", 6),
    Sketcher.Constraint("Symmetric", 3, 2, 4, 2, -1),
    Sketcher.Constraint("Symmetric", 2, 2, 5, 2, -1),
    Sketcher.Constraint("Parallel", 1, 5),
    Sketcher.Constraint("Parallel", 3, 7),
    Sketcher.Constraint("Equal", 0, 4),
    Sketcher.Constraint("Angle", 1, Q("-170 deg")),
    Sketcher.Constraint("DistanceY", 0, 2, 0, 1, Q("8.5 mm")),
    Sketcher.Constraint("DistanceX", 1, 2, 0, 2, Q("8 mm")),
    Sketcher.Constraint("DistanceY", 0, 2, 4, 2, Q("187 mm")),
    Sketcher.Constraint("DistanceX", 0, 2, -1, 1, Q("103.95 mm")),
])
pocket6 = doc.addObject("PartDesign::Pocket", "Pocket005")
body.addObject(pocket6)
pocket6.Profile = sketch12
pocket6.Type = "ThroughAll"
pocket6.Reversed = True

# Sketch on XY plane
sketch13 = doc.addObject("Sketcher::SketchObject", "Sketch012")
body.addObject(sketch13)
sketch13.AttachmentSupport = (doc.XY_Plane, [""])
sketch13.MapMode = "FlatFace"
sketch13.AttachmentOffset = App.Placement(V(0, 0, 101.5), App.Rotation())
sketch13.addGeometry([
    Part.LineSegment(V(-131, 72, 0), V(-131, 54, 0)),
    Part.LineSegment(V(-131, 54, 0), V(-120, 54, 0)),
    Part.LineSegment(V(-120, 54, 0), V(-120, 72, 0)),
    Part.LineSegment(V(-120, 72, 0), V(-131, 72, 0)),
], False)
sketch13.addConstraint([
    Sketcher.Constraint("Coincident", 0, 2, 1, 1),
    Sketcher.Constraint("Coincident", 1, 2, 2, 1),
    Sketcher.Constraint("Coincident", 2, 2, 3, 1),
    Sketcher.Constraint("Coincident", 3, 2, 0, 1),
    Sketcher.Constraint("Vertical", 0),
    Sketcher.Constraint("Horizontal", 1),
    Sketcher.Constraint("Vertical", 2),
    Sketcher.Constraint("Horizontal", 3),
    Sketcher.Constraint("DistanceY", -1, 1, 2, 2, Q("72 mm")),
    Sketcher.Constraint("DistanceX", 1, 2, -1, 1, Q("119.5 mm")),
    Sketcher.Constraint("DistanceY", 0, 2, 0, 1, Q("18.38758 mm")),
    Sketcher.Constraint("DistanceX", 1, 1, 1, 2, Q("11.814467 mm")),
])
pocket7 = doc.addObject("PartDesign::Pocket", "Pocket006")
body.addObject(pocket7)
pocket7.Profile = sketch13
pocket7.Type = "ThroughAll"

# Sketch on XZ plane
sketch14 = doc.addObject("Sketcher::SketchObject", "Sketch013")
body.addObject(sketch14)
sketch14.AttachmentSupport = (doc.XZ_Plane, [""])
sketch14.MapMode = "FlatFace"
sketch14.AttachmentOffset = App.Placement(V(0, 0, -65), App.Rotation())
sketch14.addGeometry([
    Part.LineSegment(V(-139, 72, 0), V(-139, 92, 0)),
    Part.LineSegment(V(-139, 92, 0), V(-131, 92, 0)),
    Part.LineSegment(V(-131, 92, 0), V(-131, 72, 0)),
    Part.LineSegment(V(-131, 72, 0), V(-139, 72, 0)),
], False)
sketch14.addConstraint([
    Sketcher.Constraint("Coincident", 0, 2, 1, 1),
    Sketcher.Constraint("Coincident", 1, 2, 2, 1),
    Sketcher.Constraint("Coincident", 2, 2, 3, 1),
    Sketcher.Constraint("Coincident", 3, 2, 0, 1),
    Sketcher.Constraint("Vertical", 0),
    Sketcher.Constraint("Horizontal", 1),
    Sketcher.Constraint("Vertical", 2),
    Sketcher.Constraint("Horizontal", 3),
    Sketcher.Constraint("DistanceY", -1, 1, 2, 2, Q("71.5 mm")),
    Sketcher.Constraint("DistanceY", 0, 1, 0, 2, Q("20.540999 mm")),
    Sketcher.Constraint("DistanceX", 1, 1, 1, 2, Q("7.945183 mm")),
    Sketcher.Constraint("DistanceX", 0, 2, -1, 1, Q("139.25965 mm")),
])
pad7 = doc.addObject("PartDesign::Pad", "Pad006")
body.addObject(pad7)
pad7.Profile = sketch14
pad7.Length = 7
pad7.Reversed = True

# Sketch on XZ plane
sketch15 = doc.addObject("Sketcher::SketchObject", "Sketch014")
body.addObject(sketch15)
sketch15.AttachmentSupport = (doc.XZ_Plane, [""])
sketch15.MapMode = "FlatFace"
sketch15.AttachmentOffset = App.Placement(V(0, 0, -65), App.Rotation())
sketch15.addGeometry([
    Part.LineSegment(V(-142.2, -85.5, 0), V(-142.2, -81.5, 0)),
    Part.LineSegment(V(-142.2, -81.5, 0), V(-131.3, -81.5, 0)),
    Part.LineSegment(V(-131.3, -81.5, 0), V(-131.3, -85.5, 0)),
    Part.LineSegment(V(-131.3, -85.5, 0), V(-142.2, -85.5, 0)),
], False)
sketch15.addConstraint([
    Sketcher.Constraint("Coincident", 0, 2, 1, 1),
    Sketcher.Constraint("Coincident", 1, 2, 2, 1),
    Sketcher.Constraint("Coincident", 2, 2, 3, 1),
    Sketcher.Constraint("Coincident", 3, 2, 0, 1),
    Sketcher.Constraint("Vertical", 0),
    Sketcher.Constraint("Horizontal", 1),
    Sketcher.Constraint("Vertical", 2),
    Sketcher.Constraint("Horizontal", 3),
    Sketcher.Constraint("DistanceY", 0, 1, 0, 2, Q("4 mm")),
    Sketcher.Constraint("DistanceY", 0, 2, -1, 1, Q("81.5 mm")),
    Sketcher.Constraint("DistanceX", 1, 1, 1, 2, Q("10.877815 mm")),
    Sketcher.Constraint("DistanceX", 0, 2, -1, 1, Q("142.192282 mm")),
])
pad8 = doc.addObject("PartDesign::Pad", "Pad007")
body.addObject(pad8)
pad8.Profile = sketch15
pad8.Length = 7
pad8.Reversed = True
doc.recompute()

fillet = doc.addObject("PartDesign::Fillet", "Fillet")
body.addObject(fillet)
fillet.Base = (pad8, edges_at(pad8, [
    (-111.95, 10, -99.161),
    (-103.95, 10, -97.75),
    (-103.95, 10, -89.25),
    (-111.95, 10, -87.839),
    (-111.95, 10, 99.161),
    (-111.95, 10, 87.839),
    (-103.95, 10, 89.25),
    (-103.95, 10, 97.75),
]))
fillet.Radius = 1.5

# Sketch on XY plane
sketch16 = doc.addObject("Sketcher::SketchObject", "Sketch015")
body.addObject(sketch16)
sketch16.AttachmentSupport = (doc.XY_Plane, [""])
sketch16.MapMode = "FlatFace"
sketch16.AttachmentOffset = App.Placement(V(0, 0, 101.5), App.Rotation())
sketch16.addGeometry([
    Part.LineSegment(V(-156.5, 18.9, 0), V(-156.5, 16, 0)),
    Part.LineSegment(V(-156.5, 16, 0), V(-146.5, 16, 0)),
    Part.LineSegment(V(-146.5, 16, 0), V(-146.5, 18.9, 0)),
    Part.LineSegment(V(-146.5, 18.9, 0), V(-156.5, 18.9, 0)),
], False)
sketch16.addConstraint([
    Sketcher.Constraint("Coincident", 0, 2, 1, 1),
    Sketcher.Constraint("Coincident", 1, 2, 2, 1),
    Sketcher.Constraint("Coincident", 2, 2, 3, 1),
    Sketcher.Constraint("Coincident", 3, 2, 0, 1),
    Sketcher.Constraint("Vertical", 0),
    Sketcher.Constraint("Horizontal", 1),
    Sketcher.Constraint("Vertical", 2),
    Sketcher.Constraint("Horizontal", 3),
    Sketcher.Constraint("DistanceX", 1, 1, 1, 2, Q("10 mm")),
    Sketcher.Constraint("DistanceY", 0, 2, 0, 1, Q("2.9 mm")),
    Sketcher.Constraint("DistanceX", 0, 2, -1, 1, Q("156.5 mm")),
    Sketcher.Constraint("DistanceY", -1, 1, 0, 2, Q("15.994953 mm")),
])
pocket8 = doc.addObject("PartDesign::Pocket", "Pocket007")
body.addObject(pocket8)
pocket8.Profile = sketch16
pocket8.Type = "ThroughAll"
pocket8.Midplane = True

# Sketch on YZ plane
sketch17 = doc.addObject("Sketcher::SketchObject", "Sketch016")
body.addObject(sketch17)
sketch17.AttachmentSupport = (doc.YZ_Plane, [""])
sketch17.MapMode = "FlatFace"
sketch17.AttachmentOffset = App.Placement(V(0, 0, -184.5), App.Rotation())
sketch17.addGeometry([
    Part.LineSegment(V(72, -42, 0), V(20, -42, 0)),  # 0
    Part.LineSegment(V(20, -42, 0), V(20, -33, 0)),  # 1
    Part.LineSegment(V(20, -33, 0), V(72, -33, 0)),  # 2
    Part.LineSegment(V(72, -33, 0), V(72, -42, 0)),  # 3
    Part.LineSegment(V(72, 35, 0), V(20, 35, 0)),  # 4
    Part.LineSegment(V(20, 35, 0), V(20, 42, 0)),  # 5
    Part.LineSegment(V(20, 42, 0), V(72, 42, 0)),  # 6
    Part.LineSegment(V(72, 42, 0), V(72, 35, 0)),  # 7
], False)
sketch17.addConstraint([
    Sketcher.Constraint("Coincident", 0, 2, 1, 1),
    Sketcher.Constraint("Coincident", 1, 2, 2, 1),
    Sketcher.Constraint("Coincident", 2, 2, 3, 1),
    Sketcher.Constraint("Coincident", 3, 2, 0, 1),
    Sketcher.Constraint("Coincident", 4, 2, 5, 1),
    Sketcher.Constraint("Coincident", 5, 2, 6, 1),
    Sketcher.Constraint("Coincident", 6, 2, 7, 1),
    Sketcher.Constraint("Coincident", 7, 2, 4, 1),
    Sketcher.Constraint("Horizontal", 0),
    Sketcher.Constraint("Vertical", 1),
    Sketcher.Constraint("Horizontal", 2),
    Sketcher.Constraint("Vertical", 3),
    Sketcher.Constraint("Horizontal", 4),
    Sketcher.Constraint("Vertical", 5),
    Sketcher.Constraint("Horizontal", 6),
    Sketcher.Constraint("Vertical", 7),
    Sketcher.Constraint("Symmetric", 0, 2, 5, 2, -1),
    Sketcher.Constraint("Vertical", 3, 2, 6, 2),
    Sketcher.Constraint("DistanceX", 0, 2, 0, 1, Q("52 mm")),
    Sketcher.Constraint("DistanceY", 5, 1, 5, 2, Q("6.5 mm")),
    Sketcher.Constraint("DistanceX", -1, 1, 0, 2, Q("20 mm")),
    Sketcher.Constraint("DistanceY", -1, 1, 4, 2, Q("35 mm")),
    Sketcher.Constraint("DistanceY", 1, 1, 1, 2, Q("8.352928 mm")),
])
pocket9 = doc.addObject("PartDesign::Pocket", "Pocket008")
body.addObject(pocket9)
pocket9.Profile = sketch17
pocket9.Type = "ThroughAll"
pocket9.Reversed = True

# Sketch on XY plane
sketch18 = doc.addObject("Sketcher::SketchObject", "Sketch017")
body.addObject(sketch18)
sketch18.AttachmentSupport = (doc.XY_Plane, [""])
sketch18.MapMode = "FlatFace"
sketch18.AttachmentOffset = App.Placement(V(0, 0, 101.5), App.Rotation())
sketch18.addGeometry([
    Part.LineSegment(V(-146, 28, 0), V(-146, 16, 0)),
    Part.LineSegment(V(-146, 16, 0), V(-103, 16, 0)),
    Part.LineSegment(V(-103, 16, 0), V(-103, 28, 0)),
    Part.LineSegment(V(-103, 28, 0), V(-146, 28, 0)),
], False)
sketch18.addConstraint([
    Sketcher.Constraint("Coincident", 0, 2, 1, 1),
    Sketcher.Constraint("Coincident", 1, 2, 2, 1),
    Sketcher.Constraint("Coincident", 2, 2, 3, 1),
    Sketcher.Constraint("Coincident", 3, 2, 0, 1),
    Sketcher.Constraint("Vertical", 0),
    Sketcher.Constraint("Horizontal", 1),
    Sketcher.Constraint("Vertical", 2),
    Sketcher.Constraint("Horizontal", 3),
    Sketcher.Constraint("DistanceX", 0, 2, -1, 1, Q("146.5 mm")),
    Sketcher.Constraint("DistanceX", 1, 1, 1, 2, Q("43.183103 mm")),
    Sketcher.Constraint("DistanceY", 0, 2, 0, 1, Q("12.429437 mm")),
    Sketcher.Constraint("DistanceY", -1, 1, 2, 2, Q("28.424389 mm")),
])
pocket10 = doc.addObject("PartDesign::Pocket", "Pocket009")
body.addObject(pocket10)
pocket10.Profile = sketch18
pocket10.Type = "ThroughAll"

doc.recompute()
